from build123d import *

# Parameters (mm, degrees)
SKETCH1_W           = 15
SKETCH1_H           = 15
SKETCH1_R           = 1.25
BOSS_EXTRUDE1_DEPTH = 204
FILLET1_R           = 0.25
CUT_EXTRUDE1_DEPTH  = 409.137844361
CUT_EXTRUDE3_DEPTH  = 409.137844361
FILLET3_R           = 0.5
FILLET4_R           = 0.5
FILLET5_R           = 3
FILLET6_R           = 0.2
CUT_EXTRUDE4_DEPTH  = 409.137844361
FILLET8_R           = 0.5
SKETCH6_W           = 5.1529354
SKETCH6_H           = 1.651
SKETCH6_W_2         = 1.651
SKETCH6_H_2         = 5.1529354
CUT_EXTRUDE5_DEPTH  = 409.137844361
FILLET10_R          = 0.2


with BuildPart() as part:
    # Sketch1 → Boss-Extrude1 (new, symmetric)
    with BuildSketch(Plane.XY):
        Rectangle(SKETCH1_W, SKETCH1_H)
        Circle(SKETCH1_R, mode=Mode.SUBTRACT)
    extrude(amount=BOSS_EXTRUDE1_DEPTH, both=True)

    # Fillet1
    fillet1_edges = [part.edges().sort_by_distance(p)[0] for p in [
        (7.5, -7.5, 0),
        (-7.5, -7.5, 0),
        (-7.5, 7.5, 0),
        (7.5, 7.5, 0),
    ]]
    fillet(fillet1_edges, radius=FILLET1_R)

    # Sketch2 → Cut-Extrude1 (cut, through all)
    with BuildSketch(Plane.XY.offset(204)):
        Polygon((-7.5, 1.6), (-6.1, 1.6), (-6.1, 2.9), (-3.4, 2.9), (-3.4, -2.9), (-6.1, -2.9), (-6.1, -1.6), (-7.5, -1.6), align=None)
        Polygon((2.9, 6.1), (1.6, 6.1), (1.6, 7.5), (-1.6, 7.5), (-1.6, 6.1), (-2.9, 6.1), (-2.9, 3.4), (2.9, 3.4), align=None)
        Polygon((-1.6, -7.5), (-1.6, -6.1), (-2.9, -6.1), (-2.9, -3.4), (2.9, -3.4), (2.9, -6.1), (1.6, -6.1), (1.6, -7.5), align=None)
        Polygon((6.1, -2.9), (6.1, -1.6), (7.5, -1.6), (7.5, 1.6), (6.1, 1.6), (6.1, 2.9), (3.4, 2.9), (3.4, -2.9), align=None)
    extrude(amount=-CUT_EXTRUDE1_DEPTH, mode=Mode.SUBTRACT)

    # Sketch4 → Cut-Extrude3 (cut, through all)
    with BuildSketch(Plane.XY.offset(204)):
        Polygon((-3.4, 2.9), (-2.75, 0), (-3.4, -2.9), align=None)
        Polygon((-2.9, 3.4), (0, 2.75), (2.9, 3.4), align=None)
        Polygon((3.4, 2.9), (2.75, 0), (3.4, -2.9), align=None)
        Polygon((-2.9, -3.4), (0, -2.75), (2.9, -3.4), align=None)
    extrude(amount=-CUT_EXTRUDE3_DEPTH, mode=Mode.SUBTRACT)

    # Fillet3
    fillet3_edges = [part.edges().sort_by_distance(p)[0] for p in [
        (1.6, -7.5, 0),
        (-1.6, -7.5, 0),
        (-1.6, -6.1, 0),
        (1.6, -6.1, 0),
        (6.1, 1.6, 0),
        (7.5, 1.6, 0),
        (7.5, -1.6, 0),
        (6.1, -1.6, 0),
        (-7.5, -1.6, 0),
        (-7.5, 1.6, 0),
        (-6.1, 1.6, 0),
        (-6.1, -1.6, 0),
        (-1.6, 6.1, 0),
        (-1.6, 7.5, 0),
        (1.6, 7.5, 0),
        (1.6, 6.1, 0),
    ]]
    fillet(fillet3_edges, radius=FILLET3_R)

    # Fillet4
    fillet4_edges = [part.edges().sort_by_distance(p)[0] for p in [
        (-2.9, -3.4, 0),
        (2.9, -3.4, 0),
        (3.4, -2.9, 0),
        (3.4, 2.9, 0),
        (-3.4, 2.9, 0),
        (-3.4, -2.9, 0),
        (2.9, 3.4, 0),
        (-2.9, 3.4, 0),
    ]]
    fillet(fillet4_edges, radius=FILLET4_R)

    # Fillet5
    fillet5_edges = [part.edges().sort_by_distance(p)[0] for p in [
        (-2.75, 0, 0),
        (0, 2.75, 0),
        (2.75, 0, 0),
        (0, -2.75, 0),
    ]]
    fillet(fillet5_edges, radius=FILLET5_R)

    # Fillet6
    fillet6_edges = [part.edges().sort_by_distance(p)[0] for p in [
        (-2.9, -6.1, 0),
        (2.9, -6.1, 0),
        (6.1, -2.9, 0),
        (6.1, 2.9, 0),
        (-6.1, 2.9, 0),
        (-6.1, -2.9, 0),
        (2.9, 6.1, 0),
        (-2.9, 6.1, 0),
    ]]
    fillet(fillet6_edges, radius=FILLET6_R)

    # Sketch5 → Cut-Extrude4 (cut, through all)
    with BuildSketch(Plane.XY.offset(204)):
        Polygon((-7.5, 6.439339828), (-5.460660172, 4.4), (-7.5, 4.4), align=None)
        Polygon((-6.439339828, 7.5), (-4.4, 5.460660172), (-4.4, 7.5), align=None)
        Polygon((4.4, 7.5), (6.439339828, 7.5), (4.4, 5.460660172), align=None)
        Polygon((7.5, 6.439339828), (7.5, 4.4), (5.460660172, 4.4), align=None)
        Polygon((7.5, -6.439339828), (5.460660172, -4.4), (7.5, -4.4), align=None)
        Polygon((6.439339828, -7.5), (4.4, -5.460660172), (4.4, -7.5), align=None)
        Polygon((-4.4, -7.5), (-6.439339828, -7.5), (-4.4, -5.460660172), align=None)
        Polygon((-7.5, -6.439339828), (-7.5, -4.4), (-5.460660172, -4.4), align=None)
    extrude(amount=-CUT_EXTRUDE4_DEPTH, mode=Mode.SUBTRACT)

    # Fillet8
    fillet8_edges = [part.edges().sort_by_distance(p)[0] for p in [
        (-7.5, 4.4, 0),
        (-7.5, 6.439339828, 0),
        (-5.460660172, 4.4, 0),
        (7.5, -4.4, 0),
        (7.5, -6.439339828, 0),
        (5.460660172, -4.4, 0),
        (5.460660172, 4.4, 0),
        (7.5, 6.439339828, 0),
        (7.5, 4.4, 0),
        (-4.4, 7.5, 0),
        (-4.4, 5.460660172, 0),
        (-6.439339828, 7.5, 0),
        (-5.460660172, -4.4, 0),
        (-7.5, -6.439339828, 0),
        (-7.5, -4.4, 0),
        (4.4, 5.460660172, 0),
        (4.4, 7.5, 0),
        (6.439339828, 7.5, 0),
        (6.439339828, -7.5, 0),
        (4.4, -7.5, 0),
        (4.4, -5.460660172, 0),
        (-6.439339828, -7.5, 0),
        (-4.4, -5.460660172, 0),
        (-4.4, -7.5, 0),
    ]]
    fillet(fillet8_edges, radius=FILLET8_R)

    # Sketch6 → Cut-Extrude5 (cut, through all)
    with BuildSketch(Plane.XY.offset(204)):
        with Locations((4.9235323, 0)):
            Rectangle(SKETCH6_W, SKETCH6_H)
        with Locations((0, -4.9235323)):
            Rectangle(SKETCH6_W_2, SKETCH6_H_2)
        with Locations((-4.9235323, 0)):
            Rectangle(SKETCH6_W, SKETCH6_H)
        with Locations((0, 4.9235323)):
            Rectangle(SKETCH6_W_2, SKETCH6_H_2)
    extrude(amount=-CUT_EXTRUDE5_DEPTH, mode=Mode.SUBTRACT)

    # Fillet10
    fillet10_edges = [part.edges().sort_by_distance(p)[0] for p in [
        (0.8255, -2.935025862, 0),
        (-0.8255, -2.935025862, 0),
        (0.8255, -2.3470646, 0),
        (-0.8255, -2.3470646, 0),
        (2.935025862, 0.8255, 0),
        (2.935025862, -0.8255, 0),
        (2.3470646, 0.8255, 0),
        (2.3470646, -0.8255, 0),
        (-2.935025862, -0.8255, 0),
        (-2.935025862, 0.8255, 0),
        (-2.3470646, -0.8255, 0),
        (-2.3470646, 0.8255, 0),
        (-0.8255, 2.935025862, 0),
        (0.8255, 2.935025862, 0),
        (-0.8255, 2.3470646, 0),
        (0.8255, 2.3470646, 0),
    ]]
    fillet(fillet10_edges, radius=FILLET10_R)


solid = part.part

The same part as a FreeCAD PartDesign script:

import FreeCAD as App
import Part
import Sketcher
from FreeCAD import Vector
Q = App.Units.Quantity


def edges_at(feature, points):
    """Names of the edges that pass closest to the given points."""
    edges = feature.Shape.Edges
    near = lambda p: min(range(len(edges)), key=lambda i: edges[i].distToShape(Part.Vertex(*p))[0])
    return sorted({f"Edge{near(p) + 1}" for p in points})


def add_polygon(sketch, points):
    """Adds a closed chain of lines whose ends are joined by coincident constraints."""
    first, n = sketch.GeometryCount, len(points)
    for a, b in zip(points, points[1:] + points[:1]):
        sketch.addGeometry(Part.LineSegment(App.Vector(*a, 0), App.Vector(*b, 0)), False)
    for i in range(n):
        sketch.addConstraint(Sketcher.Constraint("Coincident", first + i, 2, first + (i + 1) % n, 1))

doc = App.newDocument("Part")
body = doc.addObject("PartDesign::Body", "Body")

sketch1 = body.newObject("Sketcher::SketchObject", "Sketch")
sketch1.AttachmentSupport = (doc.getObject("XY_Plane"), [""])
sketch1.MapMode = "FlatFace"
add_polygon(sketch1, [(-7.5, 7.5), (-7.5, -7.5), (7.5, -7.5), (7.5, 7.5)])
sketch1.addGeometry(Part.Circle(Vector(0, 0, 0), Vector(0, 0, 1), 1.2), False)
sketch1.addConstraint(Sketcher.Constraint("Vertical", 0))
sketch1.addConstraint(Sketcher.Constraint("Horizontal", 1))
sketch1.addConstraint(Sketcher.Constraint("Vertical", 2))
sketch1.addConstraint(Sketcher.Constraint("Horizontal", 3))
sketch1.addConstraint(Sketcher.Constraint("Coincident", 4, 3, -1, 1))
sketch1.addConstraint(Sketcher.Constraint("Symmetric", 0, 2, 2, 2, -1, 1))
sketch1.addConstraint(Sketcher.Constraint("Equal", 3, 0))
sketch1.addConstraint(Sketcher.Constraint("Diameter", 4, Q("2.5 mm")))
sketch1.addConstraint(Sketcher.Constraint("DistanceX", 1, 1, 1, 2, Q("15 mm")))
pad1 = body.newObject("PartDesign::Pad", "Pad")
pad1.Profile = sketch1
pad1.Length = 408
pad1.Midplane = True
doc.recompute()

fillet = body.newObject("PartDesign::Fillet", "Fillet")
fillet.Base = (pad1, edges_at(pad1, [
    (7.5, -7.5, 0),
    (-7.5, -7.5, 0),
    (-7.5, 7.5, 0),
    (7.5, 7.5, 0),
]))
fillet.Radius = 0.25

sketch2 = body.newObject("Sketcher::SketchObject", "Sketch001")
sketch2.AttachmentSupport = (doc.getObject("XY_Plane"), [""])
sketch2.MapMode = "FlatFace"
sketch2.AttachmentOffset = App.Placement(Vector(0, 0, 204), App.Rotation())
add_polygon(sketch2, [(-6.1, 1.6), (-7.5, 1.6), (-7.5, -1.6), (-6.1, -1.6), (-6.1, -2.9), (-3.4, -2.9), (-3.4, 2.9), (-6.1, 2.9)])
add_polygon(sketch2, [(2.9, 6.1), (1.6, 6.1), (1.6, 7.5), (-1.6, 7.5), (-1.6, 6.1), (-2.9, 6.1), (-2.9, 3.4), (2.9, 3.4)])
add_polygon(sketch2, [(-1.6, -6.1), (-1.6, -7.5), (1.6, -7.5), (1.6, -6.1), (2.9, -6.1), (2.9, -3.4), (-2.9, -3.4), (-2.9, -6.1)])
add_polygon(sketch2, [(6.1, -2.9), (6.1, -1.6), (7.5, -1.6), (7.5, 1.6), (6.1, 1.6), (6.1, 2.9), (3.4, 2.9), (3.4, -2.9)])
sketch2.addConstraint(Sketcher.Constraint("Horizontal", 0))
sketch2.addConstraint(Sketcher.Constraint("Vertical", 1))
sketch2.addConstraint(Sketcher.Constraint("Horizontal", 2))
sketch2.addConstraint(Sketcher.Constraint("Vertical", 3))
sketch2.addConstraint(Sketcher.Constraint("Horizontal", 4))
sketch2.addConstraint(Sketcher.Constraint("Vertical", 5))
sketch2.addConstraint(Sketcher.Constraint("Horizontal", 6))
sketch2.addConstraint(Sketcher.Constraint("Vertical", 7))
sketch2.addConstraint(Sketcher.Constraint("Horizontal", 8))
sketch2.addConstraint(Sketcher.Constraint("Vertical", 9))
sketch2.addConstraint(Sketcher.Constraint("Horizontal", 10))
sketch2.addConstraint(Sketcher.Constraint("Vertical", 11))
sketch2.addConstraint(Sketcher.Constraint("Horizontal", 12))
sketch2.addConstraint(Sketcher.Constraint("Vertical", 13))
sketch2.addConstraint(Sketcher.Constraint("Horizontal", 14))
sketch2.addConstraint(Sketcher.Constraint("Vertical", 15))
sketch2.addConstraint(Sketcher.Constraint("Vertical", 16))
sketch2.addConstraint(Sketcher.Constraint("Horizontal", 17))
sketch2.addConstraint(Sketcher.Constraint("Vertical", 18))
sketch2.addConstraint(Sketcher.Constraint("Horizontal", 19))
sketch2.addConstraint(Sketcher.Constraint("Vertical", 20))
sketch2.addConstraint(Sketcher.Constraint("Horizontal", 21))
sketch2.addConstraint(Sketcher.Constraint("Vertical", 22))
sketch2.addConstraint(Sketcher.Constraint("Horizontal", 23))
sketch2.addConstraint(Sketcher.Constraint("Vertical", 24))
sketch2.addConstraint(Sketcher.Constraint("Horizontal", 25))
sketch2.addConstraint(Sketcher.Constraint("Vertical", 26))
sketch2.addConstraint(Sketcher.Constraint("Horizontal", 27))
sketch2.addConstraint(Sketcher.Constraint("Vertical", 28))
sketch2.addConstraint(Sketcher.Constraint("Horizontal", 29))
sketch2.addConstraint(Sketcher.Constraint("Vertical", 30))
sketch2.addConstraint(Sketcher.Constraint("Horizontal", 31))
sketch2.addConstraint(Sketcher.Constraint("Symmetric", 9, 2, 16, 2, -1, 1))
sketch2.addConstraint(Sketcher.Constraint("Symmetric", 11, 2, 18, 2, -1, 1))
sketch2.addConstraint(Sketcher.Constraint("Symmetric", 13, 2, 20, 2, -1, 1))
sketch2.addConstraint(Sketcher.Constraint("Symmetric", 15, 2, 22, 2, -1, 1))
sketch2.addConstraint(Sketcher.Constraint("Symmetric", 7, 2, 24, 2, -1, 1))
sketch2.addConstraint(Sketcher.Constraint("Symmetric", 1, 2, 26, 2, -1, 1))
sketch2.addConstraint(Sketcher.Constraint("Symmetric", 3, 2, 28, 2, -1, 1))
sketch2.addConstraint(Sketcher.Constraint("Symmetric", 5, 2, 30, 2, -1, 1))
sketch2.addConstraint(Sketcher.Constraint("Symmetric", 8, 2, 11, 2, -2))
sketch2.addConstraint(Sketcher.Constraint("Symmetric", 2, 2, 24, 2, -2))
sketch2.addConstraint(Sketcher.Constraint("Horizontal", 6, 2, 28, 2))
sketch2.addConstraint(Sketcher.Constraint("Vertical", 15, 2, 19, 2))
sketch2.addConstraint(Sketcher.Constraint("Equal", 17, 1))
sketch2.addConstraint(Sketcher.Constraint("Equal", 23, 3))
sketch2.addConstraint(Sketcher.Constraint("Equal", 27, 9))
sketch2.addConstraint(Sketcher.Constraint("Equal", 31, 13))
sketch2.addConstraint(Sketcher.Constraint("DistanceX", 0, 2, 0, 1, Q("1.4 mm")))
sketch2.addConstraint(Sketcher.Constraint("DistanceX", 4, 1, 4, 2, Q("2.7 mm")))
sketch2.addConstraint(Sketcher.Constraint("DistanceX", 8, 2, 8, 1, Q("1.3 mm")))
sketch2.addConstraint(Sketcher.Constraint("DistanceX", 10, 2, 10, 1, Q("3.2 mm")))
sketch2.addConstraint(Sketcher.Constraint("DistanceX", 5, 2, 8, 2, Q("5 mm")))
sketch2.addConstraint(Sketcher.Constraint("DistanceY", 4, 2, 8, 2, Q("9 mm")))
pocket1 = body.newObject("PartDesign::Pocket", "Pocket")
pocket1.Profile = sketch2
pocket1.Type = "ThroughAll"

sketch3 = body.newObject("Sketcher::SketchObject", "Sketch002")
sketch3.AttachmentSupport = (doc.getObject("XY_Plane"), [""])
sketch3.MapMode = "FlatFace"
sketch3.AttachmentOffset = App.Placement(Vector(0, 0, 204), App.Rotation())
add_polygon(sketch3, [(-2.8, 0), (-3.4, 2.9), (-3.4, -2.9)])
add_polygon(sketch3, [(-2.9, 3.4), (0, 2.8), (2.9, 3.4)])
add_polygon(sketch3, [(3.4, 2.9), (2.8, 0), (3.4, -2.9)])
add_polygon(sketch3, [(0, -2.8), (-2.9, -3.4), (2.9, -3.4)])
sketch3.addConstraint(Sketcher.Constraint("Vertical", 1))
sketch3.addConstraint(Sketcher.Constraint("Horizontal", 5))
sketch3.addConstraint(Sketcher.Constraint("Vertical", 8))
sketch3.addConstraint(Sketcher.Constraint("Horizontal", 10))
sketch3.addConstraint(Sketcher.Constraint("Symmetric", 2, 2, 6, 2, -1, 1))
sketch3.addConstraint(Sketcher.Constraint("Symmetric", 0, 2, 7, 2, -1, 1))
sketch3.addConstraint(Sketcher.Constraint("Symmetric", 4, 2, 9, 2, -1, 1))
sketch3.addConstraint(Sketcher.Constraint("Symmetric", 3, 2, 11, 2, -1, 1))
sketch3.addConstraint(Sketcher.Constraint("PointOnObject", 2, 2, -1))
sketch3.addConstraint(Sketcher.Constraint("PointOnObject", 3, 2, -2))
sketch3.addConstraint(Sketcher.Constraint("Perpendicular", 2, 3))
sketch3.addConstraint(Sketcher.Constraint("Perpendicular", 0, 4))
sketch3.addConstraint(Sketcher.Constraint("Perpendicular", 3, 6))
sketch3.addConstraint(Sketcher.Constraint("Perpendicular", 6, 11))
sketch3.addConstraint(Sketcher.Constraint("Horizontal", 1, 2, 7, 2))
sketch3.addConstraint(Sketcher.Constraint("Equal", 10, 1))
sketch3.addConstraint(Sketcher.Constraint("DistanceX", 5, 2, 5, 1, Q("5.8 mm")))
sketch3.addConstraint(Sketcher.Constraint("DistanceX", 0, 2, -1, 1, Q("3.4 mm")))
sketch3.addConstraint(Sketcher.Constraint("DistanceY", -1, 1, 4, 2, Q("3.4 mm")))
sketch3.addConstraint(Sketcher.Constraint("DistanceX", 2, 2, 6, 2, Q("5.5 mm")))
pocket2 = body.newObject("PartDesign::Pocket", "Pocket001")
pocket2.Profile = sketch3
pocket2.Type = "ThroughAll"
doc.recompute()

fillet2 = body.newObject("PartDesign::Fillet", "Fillet001")
fillet2.Base = (pocket2, edges_at(pocket2, [
    (1.6, -7.5, 0),
    (-1.6, -7.5, 0),
    (-1.6, -6.1, 0),
    (1.6, -6.1, 0),
    (6.1, 1.6, 0),
    (7.5, 1.6, 0),
    (7.5, -1.6, 0),
    (6.1, -1.6, 0),
    (-7.5, -1.6, 0),
    (-7.5, 1.6, 0),
    (-6.1, 1.6, 0),
    (-6.1, -1.6, 0),
    (-1.6, 6.1, 0),
    (-1.6, 7.5, 0),
    (1.6, 7.5, 0),
    (1.6, 6.1, 0),
]))
fillet2.Radius = 0.5
doc.recompute()

fillet3 = body.newObject("PartDesign::Fillet", "Fillet002")
fillet3.Base = (fillet2, edges_at(fillet2, [
    (-2.9, -3.4, 0),
    (2.9, -3.4, 0),
    (3.4, -2.9, 0),
    (3.4, 2.9, 0),
    (-3.4, 2.9, 0),
    (-3.4, -2.9, 0),
    (2.9, 3.4, 0),
    (-2.9, 3.4, 0),
]))
fillet3.Radius = 0.5
doc.recompute()

fillet4 = body.newObject("PartDesign::Fillet", "Fillet003")
fillet4.Base = (fillet3, edges_at(fillet3, [
    (-2.75, 0, 0),
    (0, 2.75, 0),
    (2.75, 0, 0),
    (0, -2.75, 0),
]))
fillet4.Radius = 3
doc.recompute()

fillet5 = body.newObject("PartDesign::Fillet", "Fillet004")
fillet5.Base = (fillet4, edges_at(fillet4, [
    (-2.9, -6.1, 0),
    (2.9, -6.1, 0),
    (6.1, -2.9, 0),
    (6.1, 2.9, 0),
    (-6.1, 2.9, 0),
    (-6.1, -2.9, 0),
    (2.9, 6.1, 0),
    (-2.9, 6.1, 0),
]))
fillet5.Radius = 0.2

sketch4 = body.newObject("Sketcher::SketchObject", "Sketch003")
sketch4.AttachmentSupport = (doc.getObject("XY_Plane"), [""])
sketch4.MapMode = "FlatFace"
sketch4.AttachmentOffset = App.Placement(Vector(0, 0, 204), App.Rotation())
add_polygon(sketch4, [(-5.5, 4.4), (-7.5, 6.4), (-7.5, 4.4)])
add_polygon(sketch4, [(-6.4, 7.5), (-4.4, 5.5), (-4.4, 7.5)])
add_polygon(sketch4, [(6.4, 7.5), (4.4, 7.5), (4.4, 5.5)])
add_polygon(sketch4, [(7.5, 4.4), (7.5, 6.4), (5.5, 4.4)])
add_polygon(sketch4, [(5.5, -4.4), (7.5, -6.4), (7.5, -4.4)])
add_polygon(sketch4, [(6.4, -7.5), (4.4, -5.5), (4.4, -7.5)])
add_polygon(sketch4, [(-6.4, -7.5), (-4.4, -7.5), (-4.4, -5.5)])
add_polygon(sketch4, [(-7.5, -4.4), (-7.5, -6.4), (-5.5, -4.4)])
sketch4.addConstraint(Sketcher.Constraint("Vertical", 1))
sketch4.addConstraint(Sketcher.Constraint("Horizontal", 2))
sketch4.addConstraint(Sketcher.Constraint("Vertical", 4))
sketch4.addConstraint(Sketcher.Constraint("Horizontal", 5))
sketch4.addConstraint(Sketcher.Constraint("Horizontal", 6))
sketch4.addConstraint(Sketcher.Constraint("Vertical", 7))
sketch4.addConstraint(Sketcher.Constraint("Vertical", 9))
sketch4.addConstraint(Sketcher.Constraint("Horizontal", 11))
sketch4.addConstraint(Sketcher.Constraint("Vertical", 13))
sketch4.addConstraint(Sketcher.Constraint("Horizontal", 14))
sketch4.addConstraint(Sketcher.Constraint("Vertical", 16))
sketch4.addConstraint(Sketcher.Constraint("Horizontal", 17))
sketch4.addConstraint(Sketcher.Constraint("Horizontal", 18))
sketch4.addConstraint(Sketcher.Constraint("Vertical", 19))
sketch4.addConstraint(Sketcher.Constraint("Vertical", 21))
sketch4.addConstraint(Sketcher.Constraint("Horizontal", 23))
sketch4.addConstraint(Sketcher.Constraint("Symmetric", 0, 2, 12, 2, -1, 1))
sketch4.addConstraint(Sketcher.Constraint("Symmetric", 2, 2, 14, 2, -1, 1))
sketch4.addConstraint(Sketcher.Constraint("Symmetric", 3, 2, 15, 2, -1, 1))
sketch4.addConstraint(Sketcher.Constraint("Symmetric", 5, 2, 17, 2, -1, 1))
sketch4.addConstraint(Sketcher.Constraint("Symmetric", 6, 2, 18, 2, -1, 1))
sketch4.addConstraint(Sketcher.Constraint("Symmetric", 9, 2, 21, 2, -1, 1))
sketch4.addConstraint(Sketcher.Constraint("Symmetric", 10, 2, 22, 2, -1, 1))
sketch4.addConstraint(Sketcher.Constraint("Symmetric", 4, 2, 6, 2, -2))
sketch4.addConstraint(Sketcher.Constraint("Symmetric", 0, 2, 9, 2, -2))
sketch4.addConstraint(Sketcher.Constraint("Symmetric", 2, 2, 10, 2, -2))
sketch4.addConstraint(Sketcher.Constraint("Parallel", 0, 3))
sketch4.addConstraint(Sketcher.Constraint("Perpendicular", 3, 8))
sketch4.addConstraint(Sketcher.Constraint("Parallel", 8, 10))
sketch4.addConstraint(Sketcher.Constraint("Perpendicular", 15, 20))
sketch4.addConstraint(Sketcher.Constraint("Horizontal", 3, 2, 7, 2))
sketch4.addConstraint(Sketcher.Constraint("Horizontal", 15, 2, 19, 2))
sketch4.addConstraint(Sketcher.Constraint("Equal", 2, 5))
sketch4.addConstraint(Sketcher.Constraint("DistanceX", 0, 2, -1, 1, Q("7.5 mm")))
sketch4.addConstraint(Sketcher.Constraint("DistanceY", -1, 1, 1, 2, Q("4.4 mm")))
sketch4.addConstraint(Sketcher.Constraint("DistanceX", 3, 2, -1, 1, Q("4.4 mm")))
sketch4.addConstraint(Sketcher.Constraint("DistanceY", -1, 1, 4, 2, Q("7.5 mm")))
sketch4.addConstraint(Sketcher.Constraint("DistanceX", 2, 1, 2, 2, Q("2.03934 mm")))
pocket3 = body.newObject("PartDesign::Pocket", "Pocket002")
pocket3.Profile = sketch4
pocket3.Type = "ThroughAll"
doc.recompute()

fillet6 = body.newObject("PartDesign::Fillet", "Fillet005")
fillet6.Base = (pocket3, edges_at(pocket3, [
    (-7.5, 4.4, 0),
    (-7.5, 6.439, 0),
    (-5.461, 4.4, 0),
    (7.5, -4.4, 0),
    (7.5, -6.439, 0),
    (5.461, -4.4, 0),
    (5.461, 4.4, 0),
    (7.5, 6.439, 0),
    (7.5, 4.4, 0),
    (-4.4, 7.5, 0),
    (-4.4, 5.461, 0),
    (-6.439, 7.5, 0),
    (-5.461, -4.4, 0),
    (-7.5, -6.439, 0),
    (-7.5, -4.4, 0),
    (4.4, 5.461, 0),
    (4.4, 7.5, 0),
    (6.439, 7.5, 0),
    (6.439, -7.5, 0),
    (4.4, -7.5, 0),
    (4.4, -5.461, 0),
    (-6.439, -7.5, 0),
    (-4.4, -5.461, 0),
    (-4.4, -7.5, 0),
]))
fillet6.Radius = 0.5

sketch5 = body.newObject("Sketcher::SketchObject", "Sketch004")
sketch5.AttachmentSupport = (doc.getObject("XY_Plane"), [""])
sketch5.MapMode = "FlatFace"
sketch5.AttachmentOffset = App.Placement(Vector(0, 0, 204), App.Rotation())
add_polygon(sketch5, [(2.3, 0.8), (2.3, -0.8), (7.5, -0.8), (7.5, 0.8)])
add_polygon(sketch5, [(-0.8, -2.3), (-0.8, -7.5), (0.8, -7.5), (0.8, -2.3)])
add_polygon(sketch5, [(-7.5, 0.8), (-7.5, -0.8), (-2.3, -0.8), (-2.3, 0.8)])
add_polygon(sketch5, [(-0.8, 7.5), (-0.8, 2.3), (0.8, 2.3), (0.8, 7.5)])
sketch5.addConstraint(Sketcher.Constraint("Vertical", 0))
sketch5.addConstraint(Sketcher.Constraint("Horizontal", 1))
sketch5.addConstraint(Sketcher.Constraint("Vertical", 2))
sketch5.addConstraint(Sketcher.Constraint("Horizontal", 3))
sketch5.addConstraint(Sketcher.Constraint("Vertical", 4))
sketch5.addConstraint(Sketcher.Constraint("Horizontal", 5))
sketch5.addConstraint(Sketcher.Constraint("Vertical", 6))
sketch5.addConstraint(Sketcher.Constraint("Horizontal", 7))
sketch5.addConstraint(Sketcher.Constraint("Vertical", 8))
sketch5.addConstraint(Sketcher.Constraint("Horizontal", 9))
sketch5.addConstraint(Sketcher.Constraint("Vertical", 10))
sketch5.addConstraint(Sketcher.Constraint("Horizontal", 11))
sketch5.addConstraint(Sketcher.Constraint("Vertical", 12))
sketch5.addConstraint(Sketcher.Constraint("Horizontal", 13))
sketch5.addConstraint(Sketcher.Constraint("Vertical", 14))
sketch5.addConstraint(Sketcher.Constraint("Horizontal", 15))
sketch5.addConstraint(Sketcher.Constraint("Symmetric", 2, 2, 8, 2, -1, 1))
sketch5.addConstraint(Sketcher.Constraint("Symmetric", 0, 2, 10, 2, -1, 1))
sketch5.addConstraint(Sketcher.Constraint("Symmetric", 6, 2, 12, 2, -1, 1))
sketch5.addConstraint(Sketcher.Constraint("Symmetric", 4, 2, 14, 2, -1, 1))
sketch5.addConstraint(Sketcher.Constraint("Horizontal", 1, 2, 8, 2))
sketch5.addConstraint(Sketcher.Constraint("Vertical", 7, 2, 12, 2))
sketch5.addConstraint(Sketcher.Constraint("Equal", 15, 0))
sketch5.addConstraint(Sketcher.Constraint("Equal", 11, 4))
sketch5.addConstraint(Sketcher.Constraint("DistanceX", -1, 1, 1, 2, Q("7.5 mm")))
sketch5.addConstraint(Sketcher.Constraint("DistanceY", 4, 2, -1, 1, Q("7.5 mm")))
sketch5.addConstraint(Sketcher.Constraint("DistanceX", 5, 1, 5, 2, Q("1.651 mm")))
sketch5.addConstraint(Sketcher.Constraint("DistanceX", 1, 1, 1, 2, Q("5.152935 mm")))
pocket4 = body.newObject("PartDesign::Pocket", "Pocket003")
pocket4.Profile = sketch5
pocket4.Type = "ThroughAll"
doc.recompute()

fillet7 = body.newObject("PartDesign::Fillet", "Fillet006")
fillet7.Base = (pocket4, edges_at(pocket4, [
    (0.826, -2.935, 0),
    (-0.826, -2.935, 0),
    (0.826, -2.347, 0),
    (-0.826, -2.347, 0),
    (2.935, 0.826, 0),
    (2.935, -0.826, 0),
    (2.347, 0.826, 0),
    (2.347, -0.826, 0),
    (-2.935, -0.826, 0),
    (-2.935, 0.826, 0),
    (-2.347, -0.826, 0),
    (-2.347, 0.826, 0),
    (-0.826, 2.935, 0),
    (0.826, 2.935, 0),
    (-0.826, 2.347, 0),
    (0.826, 2.347, 0),
]))
fillet7.Radius = 0.2

doc.recompute()
